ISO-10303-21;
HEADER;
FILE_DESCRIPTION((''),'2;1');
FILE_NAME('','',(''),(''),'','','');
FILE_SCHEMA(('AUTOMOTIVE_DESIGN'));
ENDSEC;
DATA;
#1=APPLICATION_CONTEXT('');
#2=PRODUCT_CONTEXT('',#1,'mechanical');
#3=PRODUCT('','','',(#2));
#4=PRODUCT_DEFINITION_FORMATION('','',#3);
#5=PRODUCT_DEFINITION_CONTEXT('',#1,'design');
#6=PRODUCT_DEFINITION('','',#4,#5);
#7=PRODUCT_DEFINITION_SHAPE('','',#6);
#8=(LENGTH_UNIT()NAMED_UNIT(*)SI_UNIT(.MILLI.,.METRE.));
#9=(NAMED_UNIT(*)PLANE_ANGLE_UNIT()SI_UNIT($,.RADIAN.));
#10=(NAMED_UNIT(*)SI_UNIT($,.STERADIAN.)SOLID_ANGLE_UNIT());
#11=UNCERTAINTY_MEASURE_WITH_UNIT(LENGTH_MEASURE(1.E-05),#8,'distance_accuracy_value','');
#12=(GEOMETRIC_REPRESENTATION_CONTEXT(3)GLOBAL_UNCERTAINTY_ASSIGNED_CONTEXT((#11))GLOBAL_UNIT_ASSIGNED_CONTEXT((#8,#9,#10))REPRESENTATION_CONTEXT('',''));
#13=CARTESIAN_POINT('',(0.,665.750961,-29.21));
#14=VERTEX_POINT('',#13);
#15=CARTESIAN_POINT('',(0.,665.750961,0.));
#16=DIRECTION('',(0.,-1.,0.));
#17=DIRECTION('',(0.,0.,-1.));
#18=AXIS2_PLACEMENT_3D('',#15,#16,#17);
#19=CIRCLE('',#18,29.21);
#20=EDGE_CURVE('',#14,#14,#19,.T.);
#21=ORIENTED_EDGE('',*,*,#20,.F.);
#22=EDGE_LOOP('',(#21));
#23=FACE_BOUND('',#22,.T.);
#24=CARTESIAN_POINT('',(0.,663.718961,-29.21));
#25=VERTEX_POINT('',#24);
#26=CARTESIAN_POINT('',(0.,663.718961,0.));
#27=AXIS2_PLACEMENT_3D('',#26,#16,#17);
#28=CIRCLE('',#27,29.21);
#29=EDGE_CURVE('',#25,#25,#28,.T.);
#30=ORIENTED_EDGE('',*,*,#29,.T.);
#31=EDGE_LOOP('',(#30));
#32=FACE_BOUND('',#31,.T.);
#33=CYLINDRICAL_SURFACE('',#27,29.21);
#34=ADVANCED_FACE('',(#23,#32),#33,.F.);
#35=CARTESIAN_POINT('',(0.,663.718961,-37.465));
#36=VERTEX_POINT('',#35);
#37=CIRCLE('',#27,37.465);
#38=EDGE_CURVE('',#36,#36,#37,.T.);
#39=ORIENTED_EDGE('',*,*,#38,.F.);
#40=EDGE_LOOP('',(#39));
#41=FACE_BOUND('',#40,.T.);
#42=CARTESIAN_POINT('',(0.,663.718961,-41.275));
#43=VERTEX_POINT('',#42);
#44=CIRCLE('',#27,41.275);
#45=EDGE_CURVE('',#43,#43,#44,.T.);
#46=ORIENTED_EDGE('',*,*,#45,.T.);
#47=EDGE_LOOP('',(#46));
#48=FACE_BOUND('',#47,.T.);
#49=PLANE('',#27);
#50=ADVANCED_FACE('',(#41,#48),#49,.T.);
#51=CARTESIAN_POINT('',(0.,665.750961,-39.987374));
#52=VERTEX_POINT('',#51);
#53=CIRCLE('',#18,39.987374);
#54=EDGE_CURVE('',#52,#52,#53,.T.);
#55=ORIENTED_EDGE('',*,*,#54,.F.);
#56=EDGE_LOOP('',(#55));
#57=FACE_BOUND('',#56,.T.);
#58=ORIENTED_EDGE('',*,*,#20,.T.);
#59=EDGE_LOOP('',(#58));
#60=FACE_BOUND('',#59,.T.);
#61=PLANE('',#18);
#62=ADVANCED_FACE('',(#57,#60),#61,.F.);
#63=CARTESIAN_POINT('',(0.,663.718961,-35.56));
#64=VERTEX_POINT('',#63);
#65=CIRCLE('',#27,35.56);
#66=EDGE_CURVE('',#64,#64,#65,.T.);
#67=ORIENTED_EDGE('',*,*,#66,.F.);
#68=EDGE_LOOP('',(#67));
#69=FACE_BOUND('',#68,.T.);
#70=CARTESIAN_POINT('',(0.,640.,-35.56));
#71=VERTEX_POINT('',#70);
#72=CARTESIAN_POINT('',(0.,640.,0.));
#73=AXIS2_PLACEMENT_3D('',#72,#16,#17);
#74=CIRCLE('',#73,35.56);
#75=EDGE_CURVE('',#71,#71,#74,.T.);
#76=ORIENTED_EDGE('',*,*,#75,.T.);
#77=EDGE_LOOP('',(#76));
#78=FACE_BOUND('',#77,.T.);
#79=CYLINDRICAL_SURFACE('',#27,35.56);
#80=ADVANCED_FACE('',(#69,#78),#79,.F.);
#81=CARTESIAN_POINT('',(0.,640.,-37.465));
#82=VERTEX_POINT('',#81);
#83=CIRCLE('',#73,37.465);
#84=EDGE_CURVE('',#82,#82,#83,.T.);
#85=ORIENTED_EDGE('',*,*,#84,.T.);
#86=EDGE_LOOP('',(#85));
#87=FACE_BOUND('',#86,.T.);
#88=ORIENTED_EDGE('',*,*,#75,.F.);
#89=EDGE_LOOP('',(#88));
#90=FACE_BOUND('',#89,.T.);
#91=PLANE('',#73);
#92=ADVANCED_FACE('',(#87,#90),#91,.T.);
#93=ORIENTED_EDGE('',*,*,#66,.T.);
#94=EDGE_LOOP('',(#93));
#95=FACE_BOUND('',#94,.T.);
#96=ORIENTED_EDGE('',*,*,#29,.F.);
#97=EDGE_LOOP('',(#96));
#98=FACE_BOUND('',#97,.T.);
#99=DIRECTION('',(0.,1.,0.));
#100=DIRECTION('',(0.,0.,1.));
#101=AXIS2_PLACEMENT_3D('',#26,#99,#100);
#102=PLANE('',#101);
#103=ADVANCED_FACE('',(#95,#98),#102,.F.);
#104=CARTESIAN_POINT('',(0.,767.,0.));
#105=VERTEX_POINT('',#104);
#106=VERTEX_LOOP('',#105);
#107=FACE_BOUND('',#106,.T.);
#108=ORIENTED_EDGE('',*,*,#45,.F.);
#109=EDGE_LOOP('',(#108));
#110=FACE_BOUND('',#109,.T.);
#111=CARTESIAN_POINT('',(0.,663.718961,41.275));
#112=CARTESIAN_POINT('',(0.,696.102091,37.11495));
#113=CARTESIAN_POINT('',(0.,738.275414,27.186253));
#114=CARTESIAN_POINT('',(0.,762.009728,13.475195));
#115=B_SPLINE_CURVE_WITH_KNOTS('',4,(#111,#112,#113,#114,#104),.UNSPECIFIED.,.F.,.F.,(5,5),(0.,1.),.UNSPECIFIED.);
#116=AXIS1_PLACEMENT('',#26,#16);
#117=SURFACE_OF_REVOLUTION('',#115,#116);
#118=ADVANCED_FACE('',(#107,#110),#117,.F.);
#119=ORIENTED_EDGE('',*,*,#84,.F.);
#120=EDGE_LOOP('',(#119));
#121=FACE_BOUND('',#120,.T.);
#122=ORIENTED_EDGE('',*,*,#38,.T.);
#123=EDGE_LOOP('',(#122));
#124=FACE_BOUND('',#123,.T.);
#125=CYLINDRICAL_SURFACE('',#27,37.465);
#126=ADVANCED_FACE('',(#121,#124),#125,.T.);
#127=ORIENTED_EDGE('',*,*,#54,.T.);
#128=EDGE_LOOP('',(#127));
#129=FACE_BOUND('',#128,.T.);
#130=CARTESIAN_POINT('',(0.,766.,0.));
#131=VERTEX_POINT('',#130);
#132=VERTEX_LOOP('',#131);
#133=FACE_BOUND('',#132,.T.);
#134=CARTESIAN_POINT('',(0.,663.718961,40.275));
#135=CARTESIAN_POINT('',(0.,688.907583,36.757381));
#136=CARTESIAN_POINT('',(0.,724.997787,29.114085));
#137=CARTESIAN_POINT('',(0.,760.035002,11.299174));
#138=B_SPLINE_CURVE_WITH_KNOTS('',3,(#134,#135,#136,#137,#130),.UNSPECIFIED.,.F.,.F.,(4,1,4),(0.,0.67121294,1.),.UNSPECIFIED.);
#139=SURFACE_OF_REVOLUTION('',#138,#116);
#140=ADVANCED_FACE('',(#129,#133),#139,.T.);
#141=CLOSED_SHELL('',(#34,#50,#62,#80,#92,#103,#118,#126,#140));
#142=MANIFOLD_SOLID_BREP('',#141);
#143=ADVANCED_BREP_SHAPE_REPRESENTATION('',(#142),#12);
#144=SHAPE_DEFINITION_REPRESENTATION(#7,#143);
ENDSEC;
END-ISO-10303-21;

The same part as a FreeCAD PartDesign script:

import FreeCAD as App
import Part
import Sketcher

V = App.Vector
Q = App.Units.Quantity

doc = App.newDocument("Part")
body = doc.addObject("PartDesign::Body", "Body")

# Sketch on YZ plane
sketch1 = body.newObject("Sketcher::SketchObject", "Sketch")
sketch1.AttachmentSupport = (doc.getObject("YZ_Plane"), [""])
sketch1.MapMode = "FlatFace"
sketch1.addGeometry([
    Part.BSplineCurve([V(663.718961, 41.275, 0), V(696.102091, 37.11495, 0), V(738.275414, 27.186253, 0), V(762.009728, 13.475195, 0), V(767, 0, 0)], [5, 5], [0, 1], False, 4, [1, 1, 1, 1, 1], False),  # 0
    Part.LineSegment(V(663.718961, 41.275, 0), V(663.718961, 37.465, 0)),  # 1
    Part.LineSegment(V(663.718961, 37.465, 0), V(640, 37.465, 0)),  # 2
    Part.LineSegment(V(640, 37.465, 0), V(640, 35.56, 0)),  # 3
    Part.LineSegment(V(640, 35.56, 0), V(663.718961, 35.56, 0)),  # 4
    Part.LineSegment(V(663.718961, 35.56, 0), V(663.718961, 29.21, 0)),  # 5
    Part.LineSegment(V(663.718961, 29.21, 0), V(665.750961, 29.21, 0)),  # 6
    Part.LineSegment(V(665.750961, 29.21, 0), V(665.750961, 39.987374, 0)),  # 7
    Part.BSplineCurve([V(665.750961, 39.987374, 0), V(690.211377, 36.477866, 0), V(725.630831, 28.79221, 0), V(760.035002, 11.299174, 0), V(766, 0, 0)], [4, 1, 4], [0.018067753, 0.67121294, 1], False, 3, [1, 1, 1, 1, 1], False),  # 8
    Part.LineSegment(V(766, 0, 0), V(767, 0, 0)),  # 9
], False)
sketch1.addConstraint([
    Sketcher.Constraint("Block", 0),
    Sketcher.Constraint("Block", 8),
    Sketcher.Constraint("Coincident", 0, 1, 1, 1),
    Sketcher.Constraint("Coincident", 1, 2, 2, 1),
    Sketcher.Constraint("Coincident", 2, 2, 3, 1),
    Sketcher.Constraint("Coincident", 3, 2, 4, 1),
    Sketcher.Constraint("Coincident", 4, 2, 5, 1),
    Sketcher.Constraint("Coincident", 5, 2, 6, 1),
    Sketcher.Constraint("Coincident", 6, 2, 7, 1),
    Sketcher.Constraint("Coincident", 7, 2, 8, 1),
    Sketcher.Constraint("Coincident", 8, 2, 9, 1),
    Sketcher.Constraint("Coincident", 9, 2, 0, 2),
    Sketcher.Constraint("Vertical", 1),
    Sketcher.Constraint("Horizontal", 2),
    Sketcher.Constraint("Vertical", 3),
    Sketcher.Constraint("Horizontal", 4),
    Sketcher.Constraint("Vertical", 5),
    Sketcher.Constraint("Horizontal", 6),
    Sketcher.Constraint("Vertical", 7),
    Sketcher.Constraint("Vertical", 1, 2, 4, 2),
    Sketcher.Constraint("DistanceY", 1, 2, 1, 1, Q("0.15 in")),
    Sketcher.Constraint("DistanceY", 5, 2, 5, 1, Q("0.25 in")),
    Sketcher.Constraint("DistanceY", -1, 1, 3, 2, Q("1.4 in")),
    Sketcher.Constraint("DistanceX", 2, 2, 2, 1, 23.718961),
])
revolution = body.newObject("PartDesign::Revolution", "Revolution")
revolution.Profile = sketch1
revolution.ReferenceAxis = (sketch1, ["H_Axis"])
revolution.Angle = 360

doc.recompute()
